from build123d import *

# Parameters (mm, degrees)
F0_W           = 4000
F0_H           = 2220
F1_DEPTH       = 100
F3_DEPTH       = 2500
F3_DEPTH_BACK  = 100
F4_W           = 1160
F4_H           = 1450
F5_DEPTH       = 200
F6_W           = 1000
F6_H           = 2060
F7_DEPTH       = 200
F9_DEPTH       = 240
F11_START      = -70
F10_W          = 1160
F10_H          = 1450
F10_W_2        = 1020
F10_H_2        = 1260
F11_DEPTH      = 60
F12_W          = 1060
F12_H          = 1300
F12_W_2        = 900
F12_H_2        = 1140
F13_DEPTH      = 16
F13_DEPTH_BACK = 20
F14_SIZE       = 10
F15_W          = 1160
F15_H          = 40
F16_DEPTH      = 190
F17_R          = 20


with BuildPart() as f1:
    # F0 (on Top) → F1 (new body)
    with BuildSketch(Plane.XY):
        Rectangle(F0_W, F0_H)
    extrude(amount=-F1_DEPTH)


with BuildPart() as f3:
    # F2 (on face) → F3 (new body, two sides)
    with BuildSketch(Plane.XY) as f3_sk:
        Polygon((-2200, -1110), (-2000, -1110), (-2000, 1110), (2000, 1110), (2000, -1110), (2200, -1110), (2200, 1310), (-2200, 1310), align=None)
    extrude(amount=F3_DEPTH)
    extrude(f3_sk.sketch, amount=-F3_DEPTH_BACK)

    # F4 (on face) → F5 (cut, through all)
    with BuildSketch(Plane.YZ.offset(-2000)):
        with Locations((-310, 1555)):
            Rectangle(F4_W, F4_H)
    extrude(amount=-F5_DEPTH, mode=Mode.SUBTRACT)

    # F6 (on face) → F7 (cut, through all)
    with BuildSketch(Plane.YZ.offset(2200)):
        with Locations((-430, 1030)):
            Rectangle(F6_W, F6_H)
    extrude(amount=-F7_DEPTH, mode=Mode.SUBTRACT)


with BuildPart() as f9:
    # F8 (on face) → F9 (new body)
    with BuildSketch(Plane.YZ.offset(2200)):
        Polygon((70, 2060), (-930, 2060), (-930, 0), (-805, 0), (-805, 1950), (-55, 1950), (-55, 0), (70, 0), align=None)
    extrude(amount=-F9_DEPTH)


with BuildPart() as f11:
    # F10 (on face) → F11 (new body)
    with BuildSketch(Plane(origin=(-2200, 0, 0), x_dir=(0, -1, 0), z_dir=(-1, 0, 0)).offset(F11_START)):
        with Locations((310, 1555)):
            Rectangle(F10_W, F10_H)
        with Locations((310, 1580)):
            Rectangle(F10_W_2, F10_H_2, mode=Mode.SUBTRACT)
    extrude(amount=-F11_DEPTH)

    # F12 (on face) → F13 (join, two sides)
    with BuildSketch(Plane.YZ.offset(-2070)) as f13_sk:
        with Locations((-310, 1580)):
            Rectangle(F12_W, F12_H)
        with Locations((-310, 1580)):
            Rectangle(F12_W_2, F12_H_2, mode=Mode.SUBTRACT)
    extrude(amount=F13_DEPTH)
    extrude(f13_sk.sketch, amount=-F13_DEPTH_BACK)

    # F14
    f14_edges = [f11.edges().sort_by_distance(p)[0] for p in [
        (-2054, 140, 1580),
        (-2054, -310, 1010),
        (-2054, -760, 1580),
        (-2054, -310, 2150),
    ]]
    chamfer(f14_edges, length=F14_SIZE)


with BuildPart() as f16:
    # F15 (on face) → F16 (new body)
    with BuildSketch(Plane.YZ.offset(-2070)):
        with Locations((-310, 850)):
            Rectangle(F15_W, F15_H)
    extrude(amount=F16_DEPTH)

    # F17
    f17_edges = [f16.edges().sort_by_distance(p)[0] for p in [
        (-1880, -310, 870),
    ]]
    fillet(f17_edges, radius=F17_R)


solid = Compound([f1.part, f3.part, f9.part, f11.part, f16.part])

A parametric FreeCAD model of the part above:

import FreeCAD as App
import Part
import Sketcher

V = App.Vector
Q = App.Units.Quantity


def edges_at(feature, points):
    """Names of the edges that pass closest to the given points."""
    edges = feature.Shape.Edges
    near = lambda p: min(range(len(edges)), key=lambda i: edges[i].distToShape(Part.Vertex(*p))[0])
    return sorted({f"Edge{near(p) + 1}" for p in points})

doc = App.newDocument("Part")
params = doc.addObject("Spreadsheet::Sheet", "Params")
for row, (alias, value) in enumerate([
    ("sketch1_width", "4000 mm"),
    ("sketch1_height", "2220 mm"),
    ("pad1_length", "100 mm"),
    ("sketch2_width", "200 mm"),
    ("sketch2_width2", "4000 mm"),
    ("sketch2_height", "2220 mm"),
    ("sketch2_height2", "2420 mm"),
    ("pad2_length", "2500 mm"),
    ("pad2_length2", "100 mm"),
    ("sketch3_width", "1160 mm"),
    ("sketch3_height", "1450 mm"),
    ("sketch4_width", "1000 mm"),
    ("sketch4_height", "2060 mm"),
    ("pocket2_length", "200 mm"),
    ("sketch5_width", "1000 mm"),
    ("sketch5_width2", "125 mm"),
    ("sketch5_height", "2060 mm"),
    ("sketch5_height2", "1950 mm"),
    ("pad3_length", "240 mm"),
    ("sketch6_width", "1160 mm"),
    ("sketch6_width2", "1020 mm"),
    ("sketch6_height", "1450 mm"),
    ("sketch6_height2", "1260 mm"),
    ("pad4_length", "60 mm"),
    ("sketch7_width", "1060 mm"),
    ("sketch7_width2", "900 mm"),
    ("sketch7_height", "1300 mm"),
    ("sketch7_height2", "1140 mm"),
    ("pad5_length", "16 mm"),
    ("pad5_length2", "20 mm"),
    ("chamfer_size", "10 mm"),
    ("sketch8_width", "1160 mm"),
    ("sketch8_height", "40 mm"),
    ("pad6_length", "190 mm"),
    ("fillet_radius", "20 mm"),
], start=1):
    params.set(f"A{row}", alias)
    params.set(f"B{row}", "=" + value)
    params.setAlias(f"B{row}", alias)

body = doc.addObject("PartDesign::Body", "Body")

# Sketch on XY plane
sketch1 = doc.addObject("Sketcher::SketchObject", "Sketch")
body.addObject(sketch1)
sketch1.AttachmentSupport = (doc.XY_Plane, [""])
sketch1.MapMode = "FlatFace"
sketch1.addGeometry(Part.LineSegment(V(-2000, 1110, 0), V(-2000, -1110, 0)), False)
sketch1.addGeometry(Part.LineSegment(V(-2000, -1110, 0), V(2000, -1110, 0)), False)
sketch1.addGeometry(Part.LineSegment(V(2000, -1110, 0), V(2000, 1110, 0)), False)
sketch1.addGeometry(Part.LineSegment(V(2000, 1110, 0), V(-2000, 1110, 0)), False)
sketch1.addConstraint(Sketcher.Constraint("Coincident", 0, 2, 1, 1))
sketch1.addConstraint(Sketcher.Constraint("Coincident", 1, 2, 2, 1))
sketch1.addConstraint(Sketcher.Constraint("Coincident", 2, 2, 3, 1))
sketch1.addConstraint(Sketcher.Constraint("Coincident", 3, 2, 0, 1))
sketch1.addConstraint(Sketcher.Constraint("Vertical", 0))
sketch1.addConstraint(Sketcher.Constraint("Horizontal", 1))
sketch1.addConstraint(Sketcher.Constraint("Vertical", 2))
sketch1.addConstraint(Sketcher.Constraint("Horizontal", 3))
sketch1.addConstraint(Sketcher.Constraint("Symmetric", 0, 2, 2, 2, -1, 1))
sketch1.addConstraint(Sketcher.Constraint("DistanceX", 1, 1, 1, 2, Q("4000 mm")))
sketch1.addConstraint(Sketcher.Constraint("DistanceY", 0, 2, 0, 1, Q("2220 mm")))
sketch1.setExpression("Constraints[9]", "Params.sketch1_width")
sketch1.setExpression("Constraints[10]", "Params.sketch1_height")
pad1 = doc.addObject("PartDesign::Pad", "Pad")
body.addObject(pad1)
pad1.Profile = sketch1
pad1.setExpression("Length", "Params.pad1_length")
pad1.Reversed = True
body2 = doc.addObject("PartDesign::Body", "Body001")

# Sketch on XY plane
sketch2 = doc.addObject("Sketcher::SketchObject", "Sketch001")
body2.addObject(sketch2)
sketch2.AttachmentSupport = (doc.getObject("XY_Plane001"), [""])
sketch2.MapMode = "FlatFace"
sketch2.addGeometry(Part.LineSegment(V(-2200, -1110, 0), V(-2000, -1110, 0)), False)
sketch2.addGeometry(Part.LineSegment(V(-2000, -1110, 0), V(-2000, 1110, 0)), False)
sketch2.addGeometry(Part.LineSegment(V(-2000, 1110, 0), V(2000, 1110, 0)), False)
sketch2.addGeometry(Part.LineSegment(V(2000, 1110, 0), V(2000, -1110, 0)), False)
sketch2.addGeometry(Part.LineSegment(V(2000, -1110, 0), V(2200, -1110, 0)), False)
sketch2.addGeometry(Part.LineSegment(V(2200, -1110, 0), V(2200, 1310, 0)), False)
sketch2.addGeometry(Part.LineSegment(V(2200, 1310, 0), V(-2200, 1310, 0)), False)
sketch2.addGeometry(Part.LineSegment(V(-2200, 1310, 0), V(-2200, -1110, 0)), False)
sketch2.addConstraint(Sketcher.Constraint("Coincident", 0, 2, 1, 1))
sketch2.addConstraint(Sketcher.Constraint("Coincident", 1, 2, 2, 1))
sketch2.addConstraint(Sketcher.Constraint("Coincident", 2, 2, 3, 1))
sketch2.addConstraint(Sketcher.Constraint("Coincident", 3, 2, 4, 1))
sketch2.addConstraint(Sketcher.Constraint("Coincident", 4, 2, 5, 1))
sketch2.addConstraint(Sketcher.Constraint("Coincident", 5, 2, 6, 1))
sketch2.addConstraint(Sketcher.Constraint("Coincident", 6, 2, 7, 1))
sketch2.addConstraint(Sketcher.Constraint("Coincident", 7, 2, 0, 1))
sketch2.addConstraint(Sketcher.Constraint("Horizontal", 0))
sketch2.addConstraint(Sketcher.Constraint("Vertical", 1))
sketch2.addConstraint(Sketcher.Constraint("Horizontal", 2))
sketch2.addConstraint(Sketcher.Constraint("Vertical", 3))
sketch2.addConstraint(Sketcher.Constraint("Horizontal", 4))
sketch2.addConstraint(Sketcher.Constraint("Vertical", 5))
sketch2.addConstraint(Sketcher.Constraint("Horizontal", 6))
sketch2.addConstraint(Sketcher.Constraint("Vertical", 7))
sketch2.addConstraint(Sketcher.Constraint("Symmetric", 0, 2, 2, 2, -1, 1))
sketch2.addConstraint(Sketcher.Constraint("Symmetric", 4, 2, 7, 2, -2))
sketch2.addConstraint(Sketcher.Constraint("DistanceX", 0, 1, 0, 2, Q("200 mm")))
sketch2.addConstraint(Sketcher.Constraint("DistanceX", 2, 1, 2, 2, Q("4000 mm")))
sketch2.addConstraint(Sketcher.Constraint("DistanceY", 1, 1, 1, 2, Q("2220 mm")))
sketch2.addConstraint(Sketcher.Constraint("DistanceY", 5, 1, 5, 2, Q("2420 mm")))
sketch2.setExpression("Constraints[18]", "Params.sketch2_width")
sketch2.setExpression("Constraints[19]", "Params.sketch2_width2")
sketch2.setExpression("Constraints[20]", "Params.sketch2_height")
sketch2.setExpression("Constraints[21]", "Params.sketch2_height2")
pad2 = doc.addObject("PartDesign::Pad", "Pad001")
body2.addObject(pad2)
pad2.Profile = sketch2
pad2.Type = "TwoLengths"
pad2.setExpression("Length", "Params.pad2_length")
pad2.setExpression("Length2", "Params.pad2_length2")

# Sketch on YZ plane
sketch3 = doc.addObject("Sketcher::SketchObject", "Sketch002")
body2.addObject(sketch3)
sketch3.AttachmentSupport = (doc.getObject("YZ_Plane001"), [""])
sketch3.MapMode = "FlatFace"
sketch3.AttachmentOffset = App.Placement(V(0, 0, -2000), App.Rotation())
sketch3.addGeometry(Part.LineSegment(V(-890, 2280, 0), V(-890, 830, 0)), False)
sketch3.addGeometry(Part.LineSegment(V(-890, 830, 0), V(270, 830, 0)), False)
sketch3.addGeometry(Part.LineSegment(V(270, 830, 0), V(270, 2280, 0)), False)
sketch3.addGeometry(Part.LineSegment(V(270, 2280, 0), V(-890, 2280, 0)), False)
sketch3.addConstraint(Sketcher.Constraint("Coincident", 0, 2, 1, 1))
sketch3.addConstraint(Sketcher.Constraint("Coincident", 1, 2, 2, 1))
sketch3.addConstraint(Sketcher.Constraint("Coincident", 2, 2, 3, 1))
sketch3.addConstraint(Sketcher.Constraint("Coincident", 3, 2, 0, 1))
sketch3.addConstraint(Sketcher.Constraint("Vertical", 0))
sketch3.addConstraint(Sketcher.Constraint("Horizontal", 1))
sketch3.addConstraint(Sketcher.Constraint("Vertical", 2))
sketch3.addConstraint(Sketcher.Constraint("Horizontal", 3))
sketch3.addConstraint(Sketcher.Constraint("DistanceX", 1, 1, 1, 2, Q("1160 mm")))
sketch3.addConstraint(Sketcher.Constraint("DistanceY", 0, 2, 0, 1, Q("1450 mm")))
sketch3.addConstraint(Sketcher.Constraint("DistanceX", 0, 2, -1, 1, Q("890 mm")))
sketch3.addConstraint(Sketcher.Constraint("DistanceY", -1, 1, 0, 2, Q("830 mm")))
sketch3.setExpression("Constraints[8]", "Params.sketch3_width")
sketch3.setExpression("Constraints[9]", "Params.sketch3_height")
pocket1 = doc.addObject("PartDesign::Pocket", "Pocket")
body2.addObject(pocket1)
pocket1.Profile = sketch3
pocket1.Type = "ThroughAll"

# Sketch on YZ plane
sketch4 = doc.addObject("Sketcher::SketchObject", "Sketch003")
body2.addObject(sketch4)
sketch4.AttachmentSupport = (doc.getObject("YZ_Plane001"), [""])
sketch4.MapMode = "FlatFace"
sketch4.AttachmentOffset = App.Placement(V(0, 0, 2200), App.Rotation())
sketch4.addGeometry(Part.LineSegment(V(-930, 2060, 0), V(-930, 0, 0)), False)
sketch4.addGeometry(Part.LineSegment(V(-930, 0, 0), V(70, 0, 0)), False)
sketch4.addGeometry(Part.LineSegment(V(70, 0, 0), V(70, 2060, 0)), False)
sketch4.addGeometry(Part.LineSegment(V(70, 2060, 0), V(-930, 2060, 0)), False)
sketch4.addConstraint(Sketcher.Constraint("Coincident", 0, 2, 1, 1))
sketch4.addConstraint(Sketcher.Constraint("Coincident", 1, 2, 2, 1))
sketch4.addConstraint(Sketcher.Constraint("Coincident", 2, 2, 3, 1))
sketch4.addConstraint(Sketcher.Constraint("Coincident", 3, 2, 0, 1))
sketch4.addConstraint(Sketcher.Constraint("Vertical", 0))
sketch4.addConstraint(Sketcher.Constraint("Horizontal", 1))
sketch4.addConstraint(Sketcher.Constraint("Vertical", 2))
sketch4.addConstraint(Sketcher.Constraint("Horizontal", 3))
sketch4.addConstraint(Sketcher.Constraint("PointOnObject", 0, 2, -1))
sketch4.addConstraint(Sketcher.Constraint("DistanceX", 1, 1, 1, 2, Q("1000 mm")))
sketch4.addConstraint(Sketcher.Constraint("DistanceY", 0, 2, 0, 1, Q("2060 mm")))
sketch4.addConstraint(Sketcher.Constraint("DistanceX", 0, 2, -1, 1, Q("930 mm")))
sketch4.setExpression("Constraints[9]", "Params.sketch4_width")
sketch4.setExpression("Constraints[10]", "Params.sketch4_height")
pocket2 = doc.addObject("PartDesign::Pocket", "Pocket001")
body2.addObject(pocket2)
pocket2.Profile = sketch4
pocket2.setExpression("Length", "Params.pocket2_length")
body3 = doc.addObject("PartDesign::Body", "Body002")

# Sketch on YZ plane
sketch5 = doc.addObject("Sketcher::SketchObject", "Sketch004")
body3.addObject(sketch5)
sketch5.AttachmentSupport = (doc.getObject("YZ_Plane002"), [""])
sketch5.MapMode = "FlatFace"
sketch5.AttachmentOffset = App.Placement(V(0, 0, 2200), App.Rotation())
sketch5.addGeometry(Part.LineSegment(V(70, 2060, 0), V(-930, 2060, 0)), False)
sketch5.addGeometry(Part.LineSegment(V(-930, 2060, 0), V(-930, 0, 0)), False)
sketch5.addGeometry(Part.LineSegment(V(-930, 0, 0), V(-805, 0, 0)), False)
sketch5.addGeometry(Part.LineSegment(V(-805, 0, 0), V(-805, 1950, 0)), False)
sketch5.addGeometry(Part.LineSegment(V(-805, 1950, 0), V(-55, 1950, 0)), False)
sketch5.addGeometry(Part.LineSegment(V(-55, 1950, 0), V(-55, 0, 0)), False)
sketch5.addGeometry(Part.LineSegment(V(-55, 0, 0), V(70, 0, 0)), False)
sketch5.addGeometry(Part.LineSegment(V(70, 0, 0), V(70, 2060, 0)), False)
sketch5.addConstraint(Sketcher.Constraint("Coincident", 0, 2, 1, 1))
sketch5.addConstraint(Sketcher.Constraint("Coincident", 1, 2, 2, 1))
sketch5.addConstraint(Sketcher.Constraint("Coincident", 2, 2, 3, 1))
sketch5.addConstraint(Sketcher.Constraint("Coincident", 3, 2, 4, 1))
sketch5.addConstraint(Sketcher.Constraint("Coincident", 4, 2, 5, 1))
sketch5.addConstraint(Sketcher.Constraint("Coincident", 5, 2, 6, 1))
sketch5.addConstraint(Sketcher.Constraint("Coincident", 6, 2, 7, 1))
sketch5.addConstraint(Sketcher.Constraint("Coincident", 7, 2, 0, 1))
sketch5.addConstraint(Sketcher.Constraint("Horizontal", 0))
sketch5.addConstraint(Sketcher.Constraint("Vertical", 1))
sketch5.addConstraint(Sketcher.Constraint("Horizontal", 2))
sketch5.addConstraint(Sketcher.Constraint("Vertical", 3))
sketch5.addConstraint(Sketcher.Constraint("Horizontal", 4))
sketch5.addConstraint(Sketcher.Constraint("Vertical", 5))
sketch5.addConstraint(Sketcher.Constraint("Horizontal", 6))
sketch5.addConstraint(Sketcher.Constraint("Vertical", 7))
sketch5.addConstraint(Sketcher.Constraint("PointOnObject", 1, 2, -1))
sketch5.addConstraint(Sketcher.Constraint("PointOnObject", 5, 2, -1))
sketch5.addConstraint(Sketcher.Constraint("Equal", 2, 6))
sketch5.addConstraint(Sketcher.Constraint("DistanceX", 0, 2, 0, 1, Q("1000 mm")))
sketch5.addConstraint(Sketcher.Constraint("DistanceX", 2, 1, 2, 2, Q("125 mm")))
sketch5.addConstraint(Sketcher.Constraint("DistanceY", 1, 2, 1, 1, Q("2060 mm")))
sketch5.addConstraint(Sketcher.Constraint("DistanceY", 3, 1, 3, 2, Q("1950 mm")))
sketch5.addConstraint(Sketcher.Constraint("DistanceX", 0, 2, -1, 1, Q("930 mm")))
sketch5.setExpression("Constraints[19]", "Params.sketch5_width")
sketch5.setExpression("Constraints[20]", "Params.sketch5_width2")
sketch5.setExpression("Constraints[21]", "Params.sketch5_height")
sketch5.setExpression("Constraints[22]", "Params.sketch5_height2")
pad3 = doc.addObject("PartDesign::Pad", "Pad002")
body3.addObject(pad3)
pad3.Profile = sketch5
pad3.setExpression("Length", "Params.pad3_length")
pad3.Reversed = True
body4 = doc.addObject("PartDesign::Body", "Body003")

# Sketch on YZ plane
sketch6 = doc.addObject("Sketcher::SketchObject", "Sketch005")
body4.addObject(sketch6)
sketch6.AttachmentSupport = (doc.getObject("YZ_Plane003"), [""])
sketch6.MapMode = "FlatFace"
sketch6.AttachmentOffset = App.Placement(V(0, 0, -2130), App.Rotation())
sketch6.addGeometry(Part.LineSegment(V(270, 2280, 0), V(270, 830, 0)), False)
sketch6.addGeometry(Part.LineSegment(V(270, 830, 0), V(-890, 830, 0)), False)
sketch6.addGeometry(Part.LineSegment(V(-890, 830, 0), V(-890, 2280, 0)), False)
sketch6.addGeometry(Part.LineSegment(V(-890, 2280, 0), V(270, 2280, 0)), False)
sketch6.addGeometry(Part.LineSegment(V(-820, 950, 0), V(200, 950, 0)), False)
sketch6.addGeometry(Part.LineSegment(V(200, 950, 0), V(200, 2210, 0)), False)
sketch6.addGeometry(Part.LineSegment(V(200, 2210, 0), V(-820, 2210, 0)), False)
sketch6.addGeometry(Part.LineSegment(V(-820, 2210, 0), V(-820, 950, 0)), False)
sketch6.addConstraint(Sketcher.Constraint("Coincident", 0, 2, 1, 1))
sketch6.addConstraint(Sketcher.Constraint("Coincident", 1, 2, 2, 1))
sketch6.addConstraint(Sketcher.Constraint("Coincident", 2, 2, 3, 1))
sketch6.addConstraint(Sketcher.Constraint("Coincident", 3, 2, 0, 1))
sketch6.addConstraint(Sketcher.Constraint("Coincident", 4, 2, 5, 1))
sketch6.addConstraint(Sketcher.Constraint("Coincident", 5, 2, 6, 1))
sketch6.addConstraint(Sketcher.Constraint("Coincident", 6, 2, 7, 1))
sketch6.addConstraint(Sketcher.Constraint("Coincident", 7, 2, 4, 1))
sketch6.addConstraint(Sketcher.Constraint("Vertical", 0))
sketch6.addConstraint(Sketcher.Constraint("Horizontal", 1))
sketch6.addConstraint(Sketcher.Constraint("Vertical", 2))
sketch6.addConstraint(Sketcher.Constraint("Horizontal", 3))
sketch6.addConstraint(Sketcher.Constraint("Horizontal", 4))
sketch6.addConstraint(Sketcher.Constraint("Vertical", 5))
sketch6.addConstraint(Sketcher.Constraint("Horizontal", 6))
sketch6.addConstraint(Sketcher.Constraint("Vertical", 7))
sketch6.addConstraint(Sketcher.Constraint("DistanceX", 1, 2, 1, 1, Q("1160 mm")))
sketch6.addConstraint(Sketcher.Constraint("DistanceX", 4, 1, 4, 2, Q("1020 mm")))
sketch6.addConstraint(Sketcher.Constraint("DistanceY", 0, 2, 0, 1, Q("1450 mm")))
sketch6.addConstraint(Sketcher.Constraint("DistanceY", 5, 1, 5, 2, Q("1260 mm")))
sketch6.addConstraint(Sketcher.Constraint("DistanceX", -1, 1, 0, 2, Q("270 mm")))
sketch6.addConstraint(Sketcher.Constraint("DistanceY", -1, 1, 0, 2, Q("830 mm")))
sketch6.addConstraint(Sketcher.Constraint("DistanceX", -1, 1, 4, 2, Q("200 mm")))
sketch6.addConstraint(Sketcher.Constraint("DistanceY", -1, 1, 4, 2, Q("950 mm")))
sketch6.setExpression("Constraints[16]", "Params.sketch6_width")
sketch6.setExpression("Constraints[17]", "Params.sketch6_width2")
sketch6.setExpression("Constraints[18]", "Params.sketch6_height")
sketch6.setExpression("Constraints[19]", "Params.sketch6_height2")
pad4 = doc.addObject("PartDesign::Pad", "Pad003")
body4.addObject(pad4)
pad4.Profile = sketch6
pad4.setExpression("Length", "Params.pad4_length")

# Sketch on YZ plane
sketch7 = doc.addObject("Sketcher::SketchObject", "Sketch006")
body4.addObject(sketch7)
sketch7.AttachmentSupport = (doc.getObject("YZ_Plane003"), [""])
sketch7.MapMode = "FlatFace"
sketch7.AttachmentOffset = App.Placement(V(0, 0, -2070), App.Rotation())
sketch7.addGeometry(Part.LineSegment(V(-840, 2230, 0), V(-840, 930, 0)), False)
sketch7.addGeometry(Part.LineSegment(V(-840, 930, 0), V(220, 930, 0)), False)
sketch7.addGeometry(Part.LineSegment(V(220, 930, 0), V(220, 2230, 0)), False)
sketch7.addGeometry(Part.LineSegment(V(220, 2230, 0), V(-840, 2230, 0)), False)
sketch7.addGeometry(Part.LineSegment(V(140, 1010, 0), V(-760, 1010, 0)), False)
sketch7.addGeometry(Part.LineSegment(V(-760, 1010, 0), V(-760, 2150, 0)), False)
sketch7.addGeometry(Part.LineSegment(V(-760, 2150, 0), V(140, 2150, 0)), False)
sketch7.addGeometry(Part.LineSegment(V(140, 2150, 0), V(140, 1010, 0)), False)
sketch7.addConstraint(Sketcher.Constraint("Coincident", 0, 2, 1, 1))
sketch7.addConstraint(Sketcher.Constraint("Coincident", 1, 2, 2, 1))
sketch7.addConstraint(Sketcher.Constraint("Coincident", 2, 2, 3, 1))
sketch7.addConstraint(Sketcher.Constraint("Coincident", 3, 2, 0, 1))
sketch7.addConstraint(Sketcher.Constraint("Coincident", 4, 2, 5, 1))
sketch7.addConstraint(Sketcher.Constraint("Coincident", 5, 2, 6, 1))
sketch7.addConstraint(Sketcher.Constraint("Coincident", 6, 2, 7, 1))
sketch7.addConstraint(Sketcher.Constraint("Coincident", 7, 2, 4, 1))
sketch7.addConstraint(Sketcher.Constraint("Vertical", 0))
sketch7.addConstraint(Sketcher.Constraint("Horizontal", 1))
sketch7.addConstraint(Sketcher.Constraint("Vertical", 2))
sketch7.addConstraint(Sketcher.Constraint("Horizontal", 3))
sketch7.addConstraint(Sketcher.Constraint("Horizontal", 4))
sketch7.addConstraint(Sketcher.Constraint("Vertical", 5))
sketch7.addConstraint(Sketcher.Constraint("Horizontal", 6))
sketch7.addConstraint(Sketcher.Constraint("Vertical", 7))
sketch7.addConstraint(Sketcher.Constraint("DistanceX", 1, 1, 1, 2, Q("1060 mm")))
sketch7.addConstraint(Sketcher.Constraint("DistanceX", 4, 2, 4, 1, Q("900 mm")))
sketch7.addConstraint(Sketcher.Constraint("DistanceY", 0, 2, 0, 1, Q("1300 mm")))
sketch7.addConstraint(Sketcher.Constraint("DistanceY", 5, 1, 5, 2, Q("1140 mm")))
sketch7.addConstraint(Sketcher.Constraint("DistanceX", 0, 2, -1, 1, Q("840 mm")))
sketch7.addConstraint(Sketcher.Constraint("DistanceY", -1, 1, 0, 2, Q("930 mm")))
sketch7.addConstraint(Sketcher.Constraint("DistanceX", 4, 2, -1, 1, Q("760 mm")))
sketch7.addConstraint(Sketcher.Constraint("DistanceY", -1, 1, 4, 2, Q("1010 mm")))
sketch7.setExpression("Constraints[16]", "Params.sketch7_width")
sketch7.setExpression("Constraints[17]", "Params.sketch7_width2")
sketch7.setExpression("Constraints[18]", "Params.sketch7_height")
sketch7.setExpression("Constraints[19]", "Params.sketch7_height2")
pad5 = doc.addObject("PartDesign::Pad", "Pad004")
body4.addObject(pad5)
pad5.Profile = sketch7
pad5.Type = "TwoLengths"
pad5.setExpression("Length", "Params.pad5_length")
pad5.setExpression("Length2", "Params.pad5_length2")
doc.recompute()

chamfer = doc.addObject("PartDesign::Chamfer", "Chamfer")
body4.addObject(chamfer)
chamfer.Base = (pad5, edges_at(pad5, [
    (-2054, 140, 1580),
    (-2054, -310, 1010),
    (-2054, -760, 1580),
    (-2054, -310, 2150),
]))
chamfer.setExpression("Size", "Params.chamfer_size")
body5 = doc.addObject("PartDesign::Body", "Body004")

# Sketch on YZ plane
sketch8 = doc.addObject("Sketcher::SketchObject", "Sketch007")
body5.addObject(sketch8)
sketch8.AttachmentSupport = (doc.getObject("YZ_Plane004"), [""])
sketch8.MapMode = "FlatFace"
sketch8.AttachmentOffset = App.Placement(V(0, 0, -2070), App.Rotation())
sketch8.addGeometry(Part.LineSegment(V(-890, 870, 0), V(-890, 830, 0)), False)
sketch8.addGeometry(Part.LineSegment(V(-890, 830, 0), V(270, 830, 0)), False)
sketch8.addGeometry(Part.LineSegment(V(270, 830, 0), V(270, 870, 0)), False)
sketch8.addGeometry(Part.LineSegment(V(270, 870, 0), V(-890, 870, 0)), False)
sketch8.addConstraint(Sketcher.Constraint("Coincident", 0, 2, 1, 1))
sketch8.addConstraint(Sketcher.Constraint("Coincident", 1, 2, 2, 1))
sketch8.addConstraint(Sketcher.Constraint("Coincident", 2, 2, 3, 1))
sketch8.addConstraint(Sketcher.Constraint("Coincident", 3, 2, 0, 1))
sketch8.addConstraint(Sketcher.Constraint("Vertical", 0))
sketch8.addConstraint(Sketcher.Constraint("Horizontal", 1))
sketch8.addConstraint(Sketcher.Constraint("Vertical", 2))
sketch8.addConstraint(Sketcher.Constraint("Horizontal", 3))
sketch8.addConstraint(Sketcher.Constraint("DistanceX", 1, 1, 1, 2, Q("1160 mm")))
sketch8.addConstraint(Sketcher.Constraint("DistanceY", 0, 2, 0, 1, Q("40 mm")))
sketch8.addConstraint(Sketcher.Constraint("DistanceX", 0, 2, -1, 1, Q("890 mm")))
sketch8.addConstraint(Sketcher.Constraint("DistanceY", -1, 1, 0, 2, Q("830 mm")))
sketch8.setExpression("Constraints[8]", "Params.sketch8_width")
sketch8.setExpression("Constraints[9]", "Params.sketch8_height")
pad6 = doc.addObject("PartDesign::Pad", "Pad005")
body5.addObject(pad6)
pad6.Profile = sketch8
pad6.setExpression("Length", "Params.pad6_length")
doc.recompute()

fillet = doc.addObject("PartDesign::Fillet", "Fillet")
body5.addObject(fillet)
fillet.Base = (pad6, edges_at(pad6, [(-1880, -310, 870)]))
fillet.setExpression("Radius", "Params.fillet_radius")

doc.recompute()
